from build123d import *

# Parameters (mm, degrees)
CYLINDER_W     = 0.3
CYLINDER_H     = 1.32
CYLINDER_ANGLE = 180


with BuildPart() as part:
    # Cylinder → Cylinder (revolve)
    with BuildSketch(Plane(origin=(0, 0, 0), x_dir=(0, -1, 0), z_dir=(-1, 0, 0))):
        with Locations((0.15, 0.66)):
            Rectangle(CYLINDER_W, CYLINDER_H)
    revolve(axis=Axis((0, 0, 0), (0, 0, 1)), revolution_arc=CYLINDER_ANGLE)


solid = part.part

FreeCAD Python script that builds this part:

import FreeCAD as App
import Part
import Sketcher
from FreeCAD import Vector
Q = App.Units.Quantity


def add_polygon(sketch, points):
    """Adds a closed chain of lines whose ends are joined by coincident constraints."""
    first, n = sketch.GeometryCount, len(points)
    for a, b in zip(points, points[1:] + points[:1]):
        sketch.addGeometry(Part.LineSegment(App.Vector(*a, 0), App.Vector(*b, 0)), False)
    for i in range(n):
        sketch.addConstraint(Sketcher.Constraint("Coincident", first + i, 2, first + (i + 1) % n, 1))

doc = App.newDocument("Part")
body = doc.addObject("PartDesign::Body", "Body")

# Sketch on YZ plane
sketch1 = body.newObject("Sketcher::SketchObject", "Sketch")
sketch1.AttachmentSupport = (doc.getObject("YZ_Plane"), [""])
sketch1.MapMode = "FlatFace"
add_polygon(sketch1, [(0, 1.32), (0, 0), (-0.3, 0), (-0.3, 1.32)])  # lines 0-3
sketch1.addConstraint(Sketcher.Constraint("Vertical", 0))
sketch1.addConstraint(Sketcher.Constraint("Horizontal", 1))
sketch1.addConstraint(Sketcher.Constraint("Vertical", 2))
sketch1.addConstraint(Sketcher.Constraint("Horizontal", 3))
sketch1.addConstraint(Sketcher.Constraint("Coincident", 0, 2, -1, 1))
sketch1.addConstraint(Sketcher.Constraint("DistanceX", 1, 2, 1, 1, Q("0.3 mm")))
sketch1.addConstraint(Sketcher.Constraint("DistanceY", 0, 2, 0, 1, Q("1.32 mm")))
revolution = body.newObject("PartDesign::Revolution", "Revolution")
revolution.Profile = sketch1
revolution.ReferenceAxis = (sketch1, ["V_Axis"])
revolution.Angle = 180

doc.recompute()
